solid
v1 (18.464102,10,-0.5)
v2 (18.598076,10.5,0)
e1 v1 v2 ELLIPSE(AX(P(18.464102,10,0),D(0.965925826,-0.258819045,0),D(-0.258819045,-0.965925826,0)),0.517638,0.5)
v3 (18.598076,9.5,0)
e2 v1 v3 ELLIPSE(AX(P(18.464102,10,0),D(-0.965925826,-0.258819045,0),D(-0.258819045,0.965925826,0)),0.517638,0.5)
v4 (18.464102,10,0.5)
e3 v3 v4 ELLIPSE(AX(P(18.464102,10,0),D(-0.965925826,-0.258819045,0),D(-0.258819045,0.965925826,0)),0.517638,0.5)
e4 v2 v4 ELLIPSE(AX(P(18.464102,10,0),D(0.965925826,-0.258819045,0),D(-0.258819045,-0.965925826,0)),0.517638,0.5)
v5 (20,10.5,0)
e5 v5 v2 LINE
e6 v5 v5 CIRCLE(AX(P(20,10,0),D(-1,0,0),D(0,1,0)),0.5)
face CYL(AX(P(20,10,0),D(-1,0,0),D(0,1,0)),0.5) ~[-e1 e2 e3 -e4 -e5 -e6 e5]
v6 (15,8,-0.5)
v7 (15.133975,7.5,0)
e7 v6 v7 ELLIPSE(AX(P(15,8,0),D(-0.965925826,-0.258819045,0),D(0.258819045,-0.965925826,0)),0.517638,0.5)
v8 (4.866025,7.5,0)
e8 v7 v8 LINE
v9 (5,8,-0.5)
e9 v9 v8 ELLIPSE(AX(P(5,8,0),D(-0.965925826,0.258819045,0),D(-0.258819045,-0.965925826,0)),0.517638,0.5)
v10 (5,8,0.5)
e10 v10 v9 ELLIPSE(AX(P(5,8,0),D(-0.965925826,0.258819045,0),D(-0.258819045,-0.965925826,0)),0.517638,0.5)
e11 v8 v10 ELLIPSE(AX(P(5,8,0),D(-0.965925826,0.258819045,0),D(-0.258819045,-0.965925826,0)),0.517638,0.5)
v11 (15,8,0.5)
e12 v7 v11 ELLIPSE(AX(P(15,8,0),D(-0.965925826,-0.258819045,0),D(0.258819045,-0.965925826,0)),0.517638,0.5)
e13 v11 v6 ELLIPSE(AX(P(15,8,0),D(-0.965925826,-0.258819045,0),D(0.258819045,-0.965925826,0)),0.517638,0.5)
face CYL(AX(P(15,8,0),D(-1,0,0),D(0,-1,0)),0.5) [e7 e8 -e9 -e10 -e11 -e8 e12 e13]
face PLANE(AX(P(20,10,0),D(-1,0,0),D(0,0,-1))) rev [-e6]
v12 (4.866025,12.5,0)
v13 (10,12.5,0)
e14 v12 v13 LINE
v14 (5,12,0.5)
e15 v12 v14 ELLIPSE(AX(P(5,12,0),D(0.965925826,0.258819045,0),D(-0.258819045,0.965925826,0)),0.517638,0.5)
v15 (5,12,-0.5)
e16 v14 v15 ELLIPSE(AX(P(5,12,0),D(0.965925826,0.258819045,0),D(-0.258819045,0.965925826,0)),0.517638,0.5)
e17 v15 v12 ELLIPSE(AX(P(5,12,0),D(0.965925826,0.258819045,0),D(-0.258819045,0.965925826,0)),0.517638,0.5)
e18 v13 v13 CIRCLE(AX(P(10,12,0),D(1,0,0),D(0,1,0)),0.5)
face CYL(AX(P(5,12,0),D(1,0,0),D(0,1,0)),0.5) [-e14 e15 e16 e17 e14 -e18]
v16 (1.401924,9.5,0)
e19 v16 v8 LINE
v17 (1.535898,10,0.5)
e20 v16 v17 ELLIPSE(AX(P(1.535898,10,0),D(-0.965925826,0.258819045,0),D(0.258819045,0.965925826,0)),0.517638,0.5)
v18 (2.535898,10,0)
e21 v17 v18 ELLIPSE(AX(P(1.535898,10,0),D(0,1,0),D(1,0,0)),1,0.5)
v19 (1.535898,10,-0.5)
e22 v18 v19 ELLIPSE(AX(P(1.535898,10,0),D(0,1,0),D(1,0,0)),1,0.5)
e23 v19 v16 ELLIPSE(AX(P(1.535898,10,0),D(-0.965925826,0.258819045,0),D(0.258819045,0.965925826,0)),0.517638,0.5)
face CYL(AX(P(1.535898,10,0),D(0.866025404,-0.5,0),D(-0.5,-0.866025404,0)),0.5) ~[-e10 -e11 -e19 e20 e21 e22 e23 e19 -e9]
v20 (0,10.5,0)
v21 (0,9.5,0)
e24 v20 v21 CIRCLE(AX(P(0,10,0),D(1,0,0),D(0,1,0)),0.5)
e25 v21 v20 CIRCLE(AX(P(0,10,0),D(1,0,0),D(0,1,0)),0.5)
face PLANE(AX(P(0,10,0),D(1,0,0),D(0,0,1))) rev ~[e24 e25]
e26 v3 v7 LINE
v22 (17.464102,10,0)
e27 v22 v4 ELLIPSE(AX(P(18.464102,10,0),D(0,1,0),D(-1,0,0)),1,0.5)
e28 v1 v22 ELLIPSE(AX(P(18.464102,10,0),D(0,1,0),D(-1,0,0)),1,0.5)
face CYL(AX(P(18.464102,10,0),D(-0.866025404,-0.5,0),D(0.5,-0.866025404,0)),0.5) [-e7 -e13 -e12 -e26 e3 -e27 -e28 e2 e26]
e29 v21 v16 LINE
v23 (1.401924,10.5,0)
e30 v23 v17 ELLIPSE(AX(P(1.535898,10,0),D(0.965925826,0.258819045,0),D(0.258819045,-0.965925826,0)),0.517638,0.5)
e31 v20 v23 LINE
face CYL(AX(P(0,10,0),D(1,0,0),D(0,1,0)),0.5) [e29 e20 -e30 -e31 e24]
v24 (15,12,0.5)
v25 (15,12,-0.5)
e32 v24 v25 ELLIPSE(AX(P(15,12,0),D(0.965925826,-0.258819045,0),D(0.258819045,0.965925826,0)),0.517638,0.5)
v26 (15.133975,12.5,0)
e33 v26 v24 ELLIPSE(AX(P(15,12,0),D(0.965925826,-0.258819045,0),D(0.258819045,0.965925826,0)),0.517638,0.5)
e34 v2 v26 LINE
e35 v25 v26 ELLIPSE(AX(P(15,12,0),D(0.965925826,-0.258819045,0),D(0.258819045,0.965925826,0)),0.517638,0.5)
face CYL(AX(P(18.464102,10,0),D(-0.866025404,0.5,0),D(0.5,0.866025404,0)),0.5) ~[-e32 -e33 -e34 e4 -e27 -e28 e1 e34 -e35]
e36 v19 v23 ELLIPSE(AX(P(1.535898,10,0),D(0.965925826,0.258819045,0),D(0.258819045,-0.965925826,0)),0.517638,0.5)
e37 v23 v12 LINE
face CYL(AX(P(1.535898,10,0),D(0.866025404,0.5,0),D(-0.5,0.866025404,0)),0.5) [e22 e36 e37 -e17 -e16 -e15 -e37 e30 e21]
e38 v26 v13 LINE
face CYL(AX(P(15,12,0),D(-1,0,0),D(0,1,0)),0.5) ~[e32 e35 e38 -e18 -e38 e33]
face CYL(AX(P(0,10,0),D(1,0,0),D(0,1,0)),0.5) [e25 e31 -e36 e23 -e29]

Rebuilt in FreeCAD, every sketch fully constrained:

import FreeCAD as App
import Part
import Sketcher
Q = App.Units.Quantity

doc = App.newDocument("Part")
body = doc.addObject("PartDesign::Body", "Body")

sketch1 = doc.addObject("Sketcher::SketchObject", "Sketch")
body.addObject(sketch1)
sketch1.AttachmentSupport = (doc.YZ_Plane, [""])
sketch1.MapMode = "FlatFace"
sketch1.addGeometry(Part.Circle(App.Vector(10, 0, 0), App.Vector(0, 0, 1), 0.5), False)
sketch1.addConstraint(Sketcher.Constraint("PointOnObject", 0, 3, -1))
sketch1.addConstraint(Sketcher.Constraint("Diameter", 0, Q("1 mm")))
sketch1.addConstraint(Sketcher.Constraint("DistanceX", -1, 1, 0, 3, Q("10 mm")))

sketch2 = doc.addObject("Sketcher::SketchObject", "Sketch001")
body.addObject(sketch2)
sketch2.AttachmentSupport = (doc.XY_Plane, [""])
sketch2.MapMode = "FlatFace"
sketch2.addGeometry(Part.LineSegment(App.Vector(0, 10, 0), App.Vector(1.5, 10, 0)), False)
sketch2.addGeometry(Part.LineSegment(App.Vector(1.5, 10, 0), App.Vector(5, 12, 0)), False)
sketch2.addGeometry(Part.LineSegment(App.Vector(5, 12, 0), App.Vector(10, 12, 0)), False)
sketch2.addConstraint(Sketcher.Constraint("Coincident", 0, 2, 1, 1))
sketch2.addConstraint(Sketcher.Constraint("Coincident", 1, 2, 2, 1))
sketch2.addConstraint(Sketcher.Constraint("Horizontal", 0))
sketch2.addConstraint(Sketcher.Constraint("Horizontal", 2))
sketch2.addConstraint(Sketcher.Constraint("PointOnObject", 0, 1, -2))
sketch2.addConstraint(Sketcher.Constraint("DistanceX", 2, 1, 2, 2, Q("5 mm")))
sketch2.addConstraint(Sketcher.Constraint("Angle", 1, Q("30 deg")))
sketch2.addConstraint(Sketcher.Constraint("Distance", 1, Q("4 mm")))
sketch2.addConstraint(Sketcher.Constraint("DistanceY", -1, 1, 0, 1, Q("10 mm")))
sketch2.addConstraint(Sketcher.Constraint("DistanceX", -1, 1, 1, 2, Q("5 mm")))
doc.recompute()

additivepipe = doc.addObject("PartDesign::AdditivePipe", "AdditivePipe")
body.addObject(additivepipe)
additivepipe.Profile = sketch1
additivepipe.Spine = (sketch2, ["Edge1", "Edge2", "Edge3"])
additivepipe.Transition = "Right corner"
body2 = doc.addObject("PartDesign::Body", "Body001")
doc.recompute()

body2.BaseFeature = body
doc.recompute()

mirroring = doc.addObject("Part::Mirroring", "Mirroring")
mirroring.Source = body
mirroring.Base = App.Vector(10, 0, 0)
mirroring.Normal = App.Vector(1, 0, 0)
body3 = doc.addObject("PartDesign::Body", "Body002")
body3.BaseFeature = mirroring
boolean = doc.addObject("PartDesign::Boolean", "Boolean")
body2.addObject(boolean)
boolean.Type = "Fuse"
boolean.addObjects([body3])
doc.recompute()
body4 = doc.addObject("PartDesign::Body", "Body003")
doc.recompute()

body4.BaseFeature = body2
doc.recompute()

mirroring2 = doc.addObject("Part::Mirroring", "Mirroring001")
mirroring2.Source = body2
mirroring2.Base = App.Vector(0, 10, 0)
mirroring2.Normal = App.Vector(0, -1, 0)
body5 = doc.addObject("PartDesign::Body", "Body004")
body5.BaseFeature = mirroring2
boolean2 = doc.addObject("PartDesign::Boolean", "Boolean001")
body4.addObject(boolean2)
boolean2.Type = "Fuse"
boolean2.addObjects([body5])
doc.recompute()
mirroring.Visibility = False
mirroring2.Visibility = False

doc.recompute()
